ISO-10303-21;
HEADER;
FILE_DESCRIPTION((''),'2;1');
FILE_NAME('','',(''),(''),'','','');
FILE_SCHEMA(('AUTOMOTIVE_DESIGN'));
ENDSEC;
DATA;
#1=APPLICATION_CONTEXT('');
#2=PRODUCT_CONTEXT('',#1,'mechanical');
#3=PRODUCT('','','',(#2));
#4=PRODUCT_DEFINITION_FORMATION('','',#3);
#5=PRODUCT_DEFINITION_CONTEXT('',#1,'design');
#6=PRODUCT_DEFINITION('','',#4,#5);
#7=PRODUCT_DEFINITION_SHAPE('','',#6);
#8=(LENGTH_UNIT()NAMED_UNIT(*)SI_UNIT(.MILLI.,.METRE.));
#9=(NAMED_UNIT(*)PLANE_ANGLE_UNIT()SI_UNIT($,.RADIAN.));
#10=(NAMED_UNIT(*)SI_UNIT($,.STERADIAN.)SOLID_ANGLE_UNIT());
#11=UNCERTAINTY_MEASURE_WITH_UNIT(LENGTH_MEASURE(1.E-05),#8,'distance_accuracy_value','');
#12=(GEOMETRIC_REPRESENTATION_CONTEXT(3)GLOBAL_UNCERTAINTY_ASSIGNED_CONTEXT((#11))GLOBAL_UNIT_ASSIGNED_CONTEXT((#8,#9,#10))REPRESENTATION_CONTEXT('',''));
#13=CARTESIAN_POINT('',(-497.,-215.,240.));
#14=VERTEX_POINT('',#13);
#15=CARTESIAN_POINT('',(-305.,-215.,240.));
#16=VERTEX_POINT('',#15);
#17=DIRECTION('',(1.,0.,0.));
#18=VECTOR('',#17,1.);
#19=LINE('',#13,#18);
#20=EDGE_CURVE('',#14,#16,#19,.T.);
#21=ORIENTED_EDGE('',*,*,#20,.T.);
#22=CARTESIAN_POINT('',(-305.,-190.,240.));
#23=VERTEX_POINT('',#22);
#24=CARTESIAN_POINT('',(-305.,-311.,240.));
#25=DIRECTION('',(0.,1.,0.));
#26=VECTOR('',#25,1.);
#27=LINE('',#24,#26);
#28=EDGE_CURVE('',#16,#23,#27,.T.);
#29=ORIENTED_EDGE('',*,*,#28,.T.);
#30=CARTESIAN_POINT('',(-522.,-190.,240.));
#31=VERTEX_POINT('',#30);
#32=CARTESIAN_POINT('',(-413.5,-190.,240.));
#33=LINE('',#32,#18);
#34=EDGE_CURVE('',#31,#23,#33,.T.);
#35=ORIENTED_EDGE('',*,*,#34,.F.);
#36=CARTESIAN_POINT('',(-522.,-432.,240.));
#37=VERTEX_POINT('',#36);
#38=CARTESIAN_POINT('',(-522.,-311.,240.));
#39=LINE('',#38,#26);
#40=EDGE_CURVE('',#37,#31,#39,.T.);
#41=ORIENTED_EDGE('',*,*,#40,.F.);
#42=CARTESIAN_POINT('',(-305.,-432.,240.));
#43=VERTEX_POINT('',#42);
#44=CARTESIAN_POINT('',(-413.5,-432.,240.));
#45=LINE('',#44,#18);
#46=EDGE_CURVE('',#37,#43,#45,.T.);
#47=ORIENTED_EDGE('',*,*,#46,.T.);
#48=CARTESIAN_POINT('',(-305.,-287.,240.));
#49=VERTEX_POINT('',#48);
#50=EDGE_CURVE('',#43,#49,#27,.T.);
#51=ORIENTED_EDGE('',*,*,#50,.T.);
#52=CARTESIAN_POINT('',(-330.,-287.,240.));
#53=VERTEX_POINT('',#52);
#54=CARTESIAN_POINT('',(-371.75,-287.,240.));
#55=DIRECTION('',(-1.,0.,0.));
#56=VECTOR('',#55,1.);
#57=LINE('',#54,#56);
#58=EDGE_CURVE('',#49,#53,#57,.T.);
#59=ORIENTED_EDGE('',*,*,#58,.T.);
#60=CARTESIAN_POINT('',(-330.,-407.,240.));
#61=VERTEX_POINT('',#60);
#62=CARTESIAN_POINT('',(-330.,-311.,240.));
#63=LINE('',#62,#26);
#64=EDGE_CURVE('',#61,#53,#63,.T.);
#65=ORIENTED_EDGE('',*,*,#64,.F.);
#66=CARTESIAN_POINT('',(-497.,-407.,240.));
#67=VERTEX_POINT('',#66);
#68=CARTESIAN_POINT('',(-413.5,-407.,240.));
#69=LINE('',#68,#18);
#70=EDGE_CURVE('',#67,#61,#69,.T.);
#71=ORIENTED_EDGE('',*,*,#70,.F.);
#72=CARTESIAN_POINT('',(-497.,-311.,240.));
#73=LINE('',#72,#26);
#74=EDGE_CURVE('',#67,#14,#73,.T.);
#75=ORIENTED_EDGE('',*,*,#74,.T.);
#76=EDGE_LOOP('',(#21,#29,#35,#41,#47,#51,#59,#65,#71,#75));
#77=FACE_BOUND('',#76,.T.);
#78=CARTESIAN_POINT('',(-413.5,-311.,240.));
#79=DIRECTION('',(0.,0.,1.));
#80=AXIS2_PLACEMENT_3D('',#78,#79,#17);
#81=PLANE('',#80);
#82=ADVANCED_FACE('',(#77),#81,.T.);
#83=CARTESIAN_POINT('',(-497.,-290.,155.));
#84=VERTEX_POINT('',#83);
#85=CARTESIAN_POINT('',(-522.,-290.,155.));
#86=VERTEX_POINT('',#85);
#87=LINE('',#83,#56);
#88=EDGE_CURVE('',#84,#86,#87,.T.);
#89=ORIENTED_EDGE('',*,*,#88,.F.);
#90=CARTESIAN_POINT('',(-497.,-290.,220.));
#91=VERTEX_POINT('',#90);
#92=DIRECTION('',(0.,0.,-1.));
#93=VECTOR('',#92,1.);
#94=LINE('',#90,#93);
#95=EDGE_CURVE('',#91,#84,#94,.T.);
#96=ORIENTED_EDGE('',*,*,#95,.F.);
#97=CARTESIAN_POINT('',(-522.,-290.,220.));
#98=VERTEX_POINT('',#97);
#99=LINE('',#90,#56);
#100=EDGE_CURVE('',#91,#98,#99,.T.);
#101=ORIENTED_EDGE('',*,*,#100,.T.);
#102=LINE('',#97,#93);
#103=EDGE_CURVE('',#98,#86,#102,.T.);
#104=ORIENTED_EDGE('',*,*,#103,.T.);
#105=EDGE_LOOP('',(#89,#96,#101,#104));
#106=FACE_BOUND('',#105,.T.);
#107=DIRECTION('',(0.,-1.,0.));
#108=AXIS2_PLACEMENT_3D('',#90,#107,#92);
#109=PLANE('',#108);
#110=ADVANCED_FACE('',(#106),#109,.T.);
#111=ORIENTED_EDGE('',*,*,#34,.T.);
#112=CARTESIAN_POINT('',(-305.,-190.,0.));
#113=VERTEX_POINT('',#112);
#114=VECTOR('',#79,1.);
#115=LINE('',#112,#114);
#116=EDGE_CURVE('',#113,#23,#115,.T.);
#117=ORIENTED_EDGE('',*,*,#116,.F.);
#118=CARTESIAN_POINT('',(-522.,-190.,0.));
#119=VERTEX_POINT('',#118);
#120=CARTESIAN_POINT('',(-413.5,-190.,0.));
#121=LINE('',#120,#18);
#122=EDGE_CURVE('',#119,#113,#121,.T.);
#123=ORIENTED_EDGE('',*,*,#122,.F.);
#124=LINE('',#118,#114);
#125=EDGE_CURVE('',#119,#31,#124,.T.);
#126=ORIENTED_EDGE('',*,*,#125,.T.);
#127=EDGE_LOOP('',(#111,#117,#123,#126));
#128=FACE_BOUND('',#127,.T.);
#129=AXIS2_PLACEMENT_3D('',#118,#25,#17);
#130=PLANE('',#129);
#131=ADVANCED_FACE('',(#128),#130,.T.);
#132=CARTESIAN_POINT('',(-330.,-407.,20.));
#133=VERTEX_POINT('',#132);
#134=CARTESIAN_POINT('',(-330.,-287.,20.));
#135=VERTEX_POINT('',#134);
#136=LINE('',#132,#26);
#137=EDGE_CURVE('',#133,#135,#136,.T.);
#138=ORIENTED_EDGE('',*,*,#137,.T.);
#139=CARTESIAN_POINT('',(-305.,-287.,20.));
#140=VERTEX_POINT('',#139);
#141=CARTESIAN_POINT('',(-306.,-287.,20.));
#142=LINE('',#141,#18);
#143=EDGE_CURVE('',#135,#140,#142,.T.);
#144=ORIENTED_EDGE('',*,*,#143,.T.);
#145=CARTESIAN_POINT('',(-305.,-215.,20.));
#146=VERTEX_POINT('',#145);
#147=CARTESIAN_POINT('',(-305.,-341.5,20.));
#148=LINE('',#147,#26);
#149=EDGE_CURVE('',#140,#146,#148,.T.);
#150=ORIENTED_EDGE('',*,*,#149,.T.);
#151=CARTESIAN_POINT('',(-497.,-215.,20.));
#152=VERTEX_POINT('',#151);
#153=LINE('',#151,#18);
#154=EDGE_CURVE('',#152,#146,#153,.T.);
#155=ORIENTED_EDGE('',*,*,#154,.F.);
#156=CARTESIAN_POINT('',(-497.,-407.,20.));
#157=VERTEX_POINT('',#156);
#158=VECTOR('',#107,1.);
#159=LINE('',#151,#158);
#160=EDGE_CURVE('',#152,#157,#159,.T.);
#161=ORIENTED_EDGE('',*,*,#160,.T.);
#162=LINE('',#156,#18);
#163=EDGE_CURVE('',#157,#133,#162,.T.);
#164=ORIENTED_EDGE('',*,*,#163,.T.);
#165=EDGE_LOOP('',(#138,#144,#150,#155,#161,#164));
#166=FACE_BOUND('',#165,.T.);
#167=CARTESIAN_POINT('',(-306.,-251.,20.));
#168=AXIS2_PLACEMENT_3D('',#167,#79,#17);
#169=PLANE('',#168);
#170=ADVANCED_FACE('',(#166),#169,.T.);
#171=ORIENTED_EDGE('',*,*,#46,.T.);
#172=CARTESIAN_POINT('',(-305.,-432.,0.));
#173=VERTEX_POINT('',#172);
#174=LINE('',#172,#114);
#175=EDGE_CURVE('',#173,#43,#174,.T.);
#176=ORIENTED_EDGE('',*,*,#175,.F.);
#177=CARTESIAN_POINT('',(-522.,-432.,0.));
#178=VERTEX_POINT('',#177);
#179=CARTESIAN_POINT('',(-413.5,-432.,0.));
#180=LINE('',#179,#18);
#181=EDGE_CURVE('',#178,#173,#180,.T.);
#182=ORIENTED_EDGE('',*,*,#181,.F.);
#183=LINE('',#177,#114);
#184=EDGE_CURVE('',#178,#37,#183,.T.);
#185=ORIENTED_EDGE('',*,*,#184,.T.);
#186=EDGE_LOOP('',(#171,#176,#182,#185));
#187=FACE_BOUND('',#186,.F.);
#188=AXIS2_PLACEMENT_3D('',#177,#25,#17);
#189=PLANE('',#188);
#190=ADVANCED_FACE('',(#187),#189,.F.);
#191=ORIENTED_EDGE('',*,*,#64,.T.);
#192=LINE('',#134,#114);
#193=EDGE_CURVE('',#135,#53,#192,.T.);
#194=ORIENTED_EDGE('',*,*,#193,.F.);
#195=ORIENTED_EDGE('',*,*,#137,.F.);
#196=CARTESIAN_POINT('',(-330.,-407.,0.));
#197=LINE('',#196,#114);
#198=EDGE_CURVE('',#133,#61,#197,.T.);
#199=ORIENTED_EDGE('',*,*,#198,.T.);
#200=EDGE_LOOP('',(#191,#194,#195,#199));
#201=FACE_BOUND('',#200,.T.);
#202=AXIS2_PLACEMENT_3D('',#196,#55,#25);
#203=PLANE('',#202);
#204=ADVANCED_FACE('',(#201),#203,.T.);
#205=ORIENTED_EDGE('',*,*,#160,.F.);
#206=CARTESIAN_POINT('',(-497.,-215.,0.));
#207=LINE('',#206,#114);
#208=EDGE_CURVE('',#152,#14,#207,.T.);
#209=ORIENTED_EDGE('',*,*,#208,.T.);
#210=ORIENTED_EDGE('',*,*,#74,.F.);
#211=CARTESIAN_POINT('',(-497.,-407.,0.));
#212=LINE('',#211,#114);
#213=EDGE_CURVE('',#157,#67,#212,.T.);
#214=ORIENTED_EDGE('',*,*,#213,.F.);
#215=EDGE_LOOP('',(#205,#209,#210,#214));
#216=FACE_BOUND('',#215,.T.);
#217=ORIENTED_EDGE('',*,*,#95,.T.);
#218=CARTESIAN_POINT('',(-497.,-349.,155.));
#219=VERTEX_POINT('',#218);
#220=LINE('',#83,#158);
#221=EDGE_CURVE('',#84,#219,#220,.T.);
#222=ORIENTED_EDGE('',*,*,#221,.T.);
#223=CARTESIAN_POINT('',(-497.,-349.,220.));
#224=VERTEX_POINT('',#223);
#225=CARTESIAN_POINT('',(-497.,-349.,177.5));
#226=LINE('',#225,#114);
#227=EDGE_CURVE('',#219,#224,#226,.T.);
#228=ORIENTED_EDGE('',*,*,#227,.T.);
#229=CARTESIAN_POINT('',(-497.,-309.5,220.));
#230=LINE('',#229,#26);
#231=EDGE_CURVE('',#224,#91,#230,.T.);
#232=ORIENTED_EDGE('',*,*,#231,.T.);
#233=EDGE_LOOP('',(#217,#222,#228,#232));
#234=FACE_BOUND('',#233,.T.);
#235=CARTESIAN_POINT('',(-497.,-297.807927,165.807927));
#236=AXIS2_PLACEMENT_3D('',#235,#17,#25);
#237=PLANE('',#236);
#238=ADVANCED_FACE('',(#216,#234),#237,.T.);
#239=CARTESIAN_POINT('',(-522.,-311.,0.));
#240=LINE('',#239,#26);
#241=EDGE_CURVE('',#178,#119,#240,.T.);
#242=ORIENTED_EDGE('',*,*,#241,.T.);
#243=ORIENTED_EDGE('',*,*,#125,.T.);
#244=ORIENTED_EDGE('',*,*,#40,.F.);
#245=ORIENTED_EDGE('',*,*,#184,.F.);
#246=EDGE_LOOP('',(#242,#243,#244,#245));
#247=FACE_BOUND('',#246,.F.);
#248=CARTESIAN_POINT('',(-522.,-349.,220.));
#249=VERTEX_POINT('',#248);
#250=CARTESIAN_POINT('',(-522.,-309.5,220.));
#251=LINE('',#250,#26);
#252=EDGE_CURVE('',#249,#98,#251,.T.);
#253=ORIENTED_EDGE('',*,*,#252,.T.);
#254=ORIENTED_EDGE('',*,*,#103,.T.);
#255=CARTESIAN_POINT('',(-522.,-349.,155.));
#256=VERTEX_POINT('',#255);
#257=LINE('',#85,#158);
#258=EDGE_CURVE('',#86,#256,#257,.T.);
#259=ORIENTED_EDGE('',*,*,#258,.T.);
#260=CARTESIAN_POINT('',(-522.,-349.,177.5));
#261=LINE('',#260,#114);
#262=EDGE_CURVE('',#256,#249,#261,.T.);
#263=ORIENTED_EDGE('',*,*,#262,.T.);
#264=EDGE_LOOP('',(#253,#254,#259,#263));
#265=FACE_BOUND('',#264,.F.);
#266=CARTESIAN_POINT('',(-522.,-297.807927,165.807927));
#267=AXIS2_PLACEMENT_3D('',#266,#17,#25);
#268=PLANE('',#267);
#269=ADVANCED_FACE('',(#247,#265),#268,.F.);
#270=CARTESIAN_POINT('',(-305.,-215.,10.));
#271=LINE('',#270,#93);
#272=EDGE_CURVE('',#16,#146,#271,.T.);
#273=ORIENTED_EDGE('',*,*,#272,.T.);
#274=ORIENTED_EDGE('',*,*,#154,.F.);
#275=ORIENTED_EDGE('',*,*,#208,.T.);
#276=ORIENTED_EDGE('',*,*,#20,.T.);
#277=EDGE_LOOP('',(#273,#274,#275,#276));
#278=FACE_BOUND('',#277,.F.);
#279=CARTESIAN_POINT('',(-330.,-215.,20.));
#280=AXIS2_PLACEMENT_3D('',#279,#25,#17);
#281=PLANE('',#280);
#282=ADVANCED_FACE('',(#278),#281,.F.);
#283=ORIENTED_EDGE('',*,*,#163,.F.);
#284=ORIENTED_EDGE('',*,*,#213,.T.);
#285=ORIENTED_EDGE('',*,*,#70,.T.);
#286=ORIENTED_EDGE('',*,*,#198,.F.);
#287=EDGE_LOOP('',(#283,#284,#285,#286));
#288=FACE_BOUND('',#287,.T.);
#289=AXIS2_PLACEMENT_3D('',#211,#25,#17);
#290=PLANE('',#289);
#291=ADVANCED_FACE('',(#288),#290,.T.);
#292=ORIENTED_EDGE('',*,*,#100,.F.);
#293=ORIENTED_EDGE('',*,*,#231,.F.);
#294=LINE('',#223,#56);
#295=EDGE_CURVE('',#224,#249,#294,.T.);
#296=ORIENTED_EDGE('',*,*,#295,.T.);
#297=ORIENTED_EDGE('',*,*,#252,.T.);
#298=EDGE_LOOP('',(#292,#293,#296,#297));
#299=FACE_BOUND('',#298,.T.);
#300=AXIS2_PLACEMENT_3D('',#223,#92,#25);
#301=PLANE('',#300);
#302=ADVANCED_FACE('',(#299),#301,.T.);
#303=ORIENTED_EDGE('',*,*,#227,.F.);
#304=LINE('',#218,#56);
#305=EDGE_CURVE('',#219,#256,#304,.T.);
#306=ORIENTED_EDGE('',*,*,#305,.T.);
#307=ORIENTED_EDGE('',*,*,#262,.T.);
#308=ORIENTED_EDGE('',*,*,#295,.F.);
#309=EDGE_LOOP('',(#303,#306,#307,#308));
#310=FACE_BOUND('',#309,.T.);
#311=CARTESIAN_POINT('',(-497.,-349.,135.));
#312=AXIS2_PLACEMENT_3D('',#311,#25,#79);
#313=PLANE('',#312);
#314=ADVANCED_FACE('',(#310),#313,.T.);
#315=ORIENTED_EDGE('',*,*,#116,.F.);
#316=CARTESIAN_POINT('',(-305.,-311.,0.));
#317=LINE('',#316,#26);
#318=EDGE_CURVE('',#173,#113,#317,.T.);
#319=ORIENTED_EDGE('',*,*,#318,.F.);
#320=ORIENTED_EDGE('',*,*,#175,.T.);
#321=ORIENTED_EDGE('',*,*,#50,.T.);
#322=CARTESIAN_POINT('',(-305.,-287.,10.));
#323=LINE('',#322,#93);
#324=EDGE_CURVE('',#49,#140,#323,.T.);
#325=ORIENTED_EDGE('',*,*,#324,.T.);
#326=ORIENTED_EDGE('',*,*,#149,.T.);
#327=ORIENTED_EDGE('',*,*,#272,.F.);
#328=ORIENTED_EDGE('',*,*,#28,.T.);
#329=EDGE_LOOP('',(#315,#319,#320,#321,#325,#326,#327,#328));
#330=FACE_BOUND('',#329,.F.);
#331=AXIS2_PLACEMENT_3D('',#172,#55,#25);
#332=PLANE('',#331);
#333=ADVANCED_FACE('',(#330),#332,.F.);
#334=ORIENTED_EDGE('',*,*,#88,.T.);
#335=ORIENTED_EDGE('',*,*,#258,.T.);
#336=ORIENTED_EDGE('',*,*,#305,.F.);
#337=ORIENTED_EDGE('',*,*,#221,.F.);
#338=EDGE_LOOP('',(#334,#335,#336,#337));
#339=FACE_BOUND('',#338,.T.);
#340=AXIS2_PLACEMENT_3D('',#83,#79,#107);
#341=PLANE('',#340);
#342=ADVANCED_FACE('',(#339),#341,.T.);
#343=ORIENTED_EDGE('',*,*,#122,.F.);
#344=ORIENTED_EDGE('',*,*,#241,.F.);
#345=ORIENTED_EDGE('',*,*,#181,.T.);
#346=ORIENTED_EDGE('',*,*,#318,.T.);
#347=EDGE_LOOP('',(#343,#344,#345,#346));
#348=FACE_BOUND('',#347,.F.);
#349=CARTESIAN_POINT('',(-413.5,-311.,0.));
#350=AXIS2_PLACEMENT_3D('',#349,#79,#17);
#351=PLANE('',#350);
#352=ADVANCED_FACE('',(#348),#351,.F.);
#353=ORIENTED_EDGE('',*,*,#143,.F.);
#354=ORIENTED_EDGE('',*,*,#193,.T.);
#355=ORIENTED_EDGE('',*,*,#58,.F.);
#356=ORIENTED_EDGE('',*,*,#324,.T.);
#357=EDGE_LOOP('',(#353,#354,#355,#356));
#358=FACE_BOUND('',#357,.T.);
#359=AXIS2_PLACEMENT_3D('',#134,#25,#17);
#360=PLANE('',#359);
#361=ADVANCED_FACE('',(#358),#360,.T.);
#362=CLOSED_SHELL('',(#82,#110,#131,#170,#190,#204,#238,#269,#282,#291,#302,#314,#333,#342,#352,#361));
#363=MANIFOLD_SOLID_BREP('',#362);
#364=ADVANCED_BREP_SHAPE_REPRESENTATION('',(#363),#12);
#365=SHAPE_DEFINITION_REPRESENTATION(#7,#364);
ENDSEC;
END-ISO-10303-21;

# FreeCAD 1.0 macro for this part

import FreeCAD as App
import Part
import Sketcher
Q = App.Units.Quantity


def add_polygon(sketch, points):
    """Adds a closed chain of lines whose ends are joined by coincident constraints."""
    first, n = sketch.GeometryCount, len(points)
    for a, b in zip(points, points[1:] + points[:1]):
        sketch.addGeometry(Part.LineSegment(App.Vector(*a, 0), App.Vector(*b, 0)), False)
    for i in range(n):
        sketch.addConstraint(Sketcher.Constraint("Coincident", first + i, 2, first + (i + 1) % n, 1))

doc = App.newDocument("Part")
body = doc.addObject("PartDesign::Body", "Body")

# Sketch on XY plane
sketch1 = body.newObject("Sketcher::SketchObject", "Sketch")
sketch1.AttachmentSupport = (doc.getObject("XY_Plane"), [""])
sketch1.MapMode = "FlatFace"
add_polygon(sketch1, [(-497, -215), (-497, -407), (-330, -407), (-330, -215)])  # lines 0-3
sketch1.addConstraint([
    Sketcher.Constraint("Vertical", 0),
    Sketcher.Constraint("Horizontal", 1),
    Sketcher.Constraint("Vertical", 2),
    Sketcher.Constraint("Horizontal", 3),
    Sketcher.Constraint("DistanceX", 1, 1, 1, 2, Q("167 mm")),
    Sketcher.Constraint("DistanceY", 0, 2, 0, 1, Q("192 mm")),
    Sketcher.Constraint("DistanceX", 0, 2, -1, 1, Q("497 mm")),
    Sketcher.Constraint("DistanceY", 0, 2, -1, 1, Q("407 mm")),
])
pad1 = body.newObject("PartDesign::Pad", "Pad")
pad1.Profile = sketch1
pad1.Length = 20

# Sketch on XY plane
sketch2 = body.newObject("Sketcher::SketchObject", "Sketch001")
sketch2.AttachmentSupport = (doc.getObject("XY_Plane"), [""])
sketch2.MapMode = "FlatFace"
add_polygon(sketch2, [(-522, -190), (-522, -432), (-305, -432), (-305, -190)])  # lines 0-3
add_polygon(sketch2, [(-330, -407), (-497, -407), (-497, -215), (-330, -215)])  # lines 4-7
sketch2.addConstraint([
    Sketcher.Constraint("Vertical", 0),
    Sketcher.Constraint("Horizontal", 1),
    Sketcher.Constraint("Vertical", 2),
    Sketcher.Constraint("Horizontal", 3),
    Sketcher.Constraint("Horizontal", 4),
    Sketcher.Constraint("Vertical", 5),
    Sketcher.Constraint("Horizontal", 6),
    Sketcher.Constraint("Vertical", 7),
    Sketcher.Constraint("DistanceX", 1, 1, 1, 2, Q("217 mm")),
    Sketcher.Constraint("DistanceX", 4, 2, 4, 1, Q("167 mm")),
    Sketcher.Constraint("DistanceY", 0, 2, 0, 1, Q("242 mm")),
    Sketcher.Constraint("DistanceY", 5, 1, 5, 2, Q("192 mm")),
    Sketcher.Constraint("DistanceX", 0, 2, -1, 1, Q("522 mm")),
    Sketcher.Constraint("DistanceY", 0, 2, -1, 1, Q("432 mm")),
    Sketcher.Constraint("DistanceX", 4, 2, -1, 1, Q("497 mm")),
    Sketcher.Constraint("DistanceY", 4, 2, -1, 1, Q("407 mm")),
])
pad2 = body.newObject("PartDesign::Pad", "Pad001")
pad2.Profile = sketch2
pad2.Length = 240

# Sketch on XY plane
sketch3 = body.newObject("Sketcher::SketchObject", "Sketch002")
sketch3.AttachmentSupport = (doc.getObject("XY_Plane"), [""])
sketch3.MapMode = "FlatFace"
sketch3.AttachmentOffset = App.Placement(App.Vector(0, 0, 20), App.Rotation())
add_polygon(sketch3, [(-330, -215), (-330, -287), (-282, -287), (-282, -215)])  # lines 0-3
sketch3.addConstraint([
    Sketcher.Constraint("Vertical", 0),
    Sketcher.Constraint("Horizontal", 1),
    Sketcher.Constraint("Vertical", 2),
    Sketcher.Constraint("Horizontal", 3),
    Sketcher.Constraint("DistanceX", 1, 1, 1, 2, Q("48 mm")),
    Sketcher.Constraint("DistanceY", 0, 2, 0, 1, Q("72 mm")),
    Sketcher.Constraint("DistanceX", 0, 2, -1, 1, Q("330 mm")),
    Sketcher.Constraint("DistanceY", 0, 2, -1, 1, Q("287 mm")),
])
pocket1 = body.newObject("PartDesign::Pocket", "Pocket")
pocket1.Profile = sketch3
pocket1.Length = 250
pocket1.Reversed = True

# Sketch on YZ plane
sketch4 = body.newObject("Sketcher::SketchObject", "Sketch003")
sketch4.AttachmentSupport = (doc.getObject("YZ_Plane"), [""])
sketch4.MapMode = "FlatFace"
sketch4.AttachmentOffset = App.Placement(App.Vector(0, 0, -497), App.Rotation())
add_polygon(sketch4, [(-349, 220), (-349, 135), (-270, 135), (-270, 220)])  # lines 0-3
sketch4.addConstraint([
    Sketcher.Constraint("Vertical", 0),
    Sketcher.Constraint("Horizontal", 1),
    Sketcher.Constraint("Vertical", 2),
    Sketcher.Constraint("Horizontal", 3),
    Sketcher.Constraint("DistanceX", 1, 1, 1, 2, Q("79 mm")),
    Sketcher.Constraint("DistanceY", 0, 2, 0, 1, Q("85 mm")),
    Sketcher.Constraint("DistanceX", 0, 2, -1, 1, Q("349 mm")),
    Sketcher.Constraint("DistanceY", -1, 1, 0, 2, Q("135 mm")),
])
pocket2 = body.newObject("PartDesign::Pocket", "Pocket001")
pocket2.Profile = sketch4
pocket2.Length = 25

# Sketch on YZ plane
sketch5 = body.newObject("Sketcher::SketchObject", "Sketch004")
sketch5.AttachmentSupport = (doc.getObject("YZ_Plane"), [""])
sketch5.MapMode = "FlatFace"
sketch5.AttachmentOffset = App.Placement(App.Vector(0, 0, -497), App.Rotation())
add_polygon(sketch5, [(-270, 135), (-270, 220), (-290, 220), (-290, 155), (-349, 155), (-349, 135)])  # lines 0-5
sketch5.addConstraint([
    Sketcher.Constraint("Vertical", 0),
    Sketcher.Constraint("Horizontal", 1),
    Sketcher.Constraint("Vertical", 2),
    Sketcher.Constraint("Horizontal", 3),
    Sketcher.Constraint("Vertical", 4),
    Sketcher.Constraint("Horizontal", 5),
    Sketcher.Constraint("Equal", 1, 4),
    Sketcher.Constraint("DistanceX", 1, 2, 1, 1, Q("20 mm")),
    Sketcher.Constraint("DistanceX", 3, 2, 3, 1, Q("59 mm")),
    Sketcher.Constraint("DistanceY", 0, 1, 0, 2, Q("85 mm")),
    Sketcher.Constraint("DistanceX", 0, 2, -1, 1, Q("270 mm")),
    Sketcher.Constraint("DistanceY", -1, 1, 0, 2, Q("220 mm")),
])
pad3 = body.newObject("PartDesign::Pad", "Pad002")
pad3.Profile = sketch5
pad3.Length = 25
pad3.Reversed = True

doc.recompute()
